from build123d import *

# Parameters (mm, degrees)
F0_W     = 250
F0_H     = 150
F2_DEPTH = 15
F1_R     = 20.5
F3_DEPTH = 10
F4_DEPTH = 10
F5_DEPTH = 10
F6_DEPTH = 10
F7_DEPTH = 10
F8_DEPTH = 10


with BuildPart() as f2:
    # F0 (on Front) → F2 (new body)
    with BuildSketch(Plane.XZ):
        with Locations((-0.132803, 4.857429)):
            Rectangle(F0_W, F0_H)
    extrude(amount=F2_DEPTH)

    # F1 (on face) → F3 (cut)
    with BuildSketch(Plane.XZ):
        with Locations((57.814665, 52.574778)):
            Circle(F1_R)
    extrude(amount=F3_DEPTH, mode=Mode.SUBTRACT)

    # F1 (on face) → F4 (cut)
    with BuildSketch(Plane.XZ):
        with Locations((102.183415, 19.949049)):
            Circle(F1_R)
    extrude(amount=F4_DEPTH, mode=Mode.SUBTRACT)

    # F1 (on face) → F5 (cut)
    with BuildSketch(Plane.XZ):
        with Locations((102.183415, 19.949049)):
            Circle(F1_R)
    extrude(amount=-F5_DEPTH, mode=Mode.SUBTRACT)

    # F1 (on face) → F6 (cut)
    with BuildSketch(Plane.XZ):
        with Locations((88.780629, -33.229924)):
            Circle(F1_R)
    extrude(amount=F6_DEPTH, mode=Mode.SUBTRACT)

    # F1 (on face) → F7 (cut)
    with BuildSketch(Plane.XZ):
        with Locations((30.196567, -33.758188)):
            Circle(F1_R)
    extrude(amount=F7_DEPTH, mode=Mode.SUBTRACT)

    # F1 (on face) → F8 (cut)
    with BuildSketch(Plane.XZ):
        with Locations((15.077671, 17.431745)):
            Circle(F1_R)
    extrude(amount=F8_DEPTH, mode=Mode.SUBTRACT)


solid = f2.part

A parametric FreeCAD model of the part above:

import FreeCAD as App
import Part
import Sketcher

V = App.Vector
Q = App.Units.Quantity


def add_polygon(sketch, points):
    """Adds a closed chain of lines whose ends are joined by coincident constraints."""
    first, n = sketch.GeometryCount, len(points)
    for a, b in zip(points, points[1:] + points[:1]):
        sketch.addGeometry(Part.LineSegment(App.Vector(*a, 0), App.Vector(*b, 0)), False)
    for i in range(n):
        sketch.addConstraint(Sketcher.Constraint("Coincident", first + i, 2, first + (i + 1) % n, 1))

doc = App.newDocument("Part")
body = doc.addObject("PartDesign::Body", "Body")

# Sketch on XZ plane
sketch1 = body.newObject("Sketcher::SketchObject", "Sketch")
sketch1.AttachmentSupport = (doc.getObject("XZ_Plane"), [""])
sketch1.MapMode = "FlatFace"
add_polygon(sketch1, [(-125, 80), (-125, -70), (125, -70), (125, 80)])  # lines 0-3
sketch1.addConstraint(Sketcher.Constraint("Vertical", 0))
sketch1.addConstraint(Sketcher.Constraint("Horizontal", 1))
sketch1.addConstraint(Sketcher.Constraint("Vertical", 2))
sketch1.addConstraint(Sketcher.Constraint("Horizontal", 3))
sketch1.addConstraint(Sketcher.Constraint("DistanceX", 1, 1, 1, 2, Q("250 mm")))
sketch1.addConstraint(Sketcher.Constraint("DistanceY", 0, 2, 0, 1, Q("150 mm")))
sketch1.addConstraint(Sketcher.Constraint("DistanceY", 0, 2, -1, 1, Q("70.142571 mm")))
sketch1.addConstraint(Sketcher.Constraint("DistanceX", 0, 2, -1, 1, Q("125.132803 mm")))
pad1 = body.newObject("PartDesign::Pad", "Pad")
pad1.Profile = sketch1
pad1.Length = 15

# Sketch on XZ plane
sketch2 = body.newObject("Sketcher::SketchObject", "Sketch001")
sketch2.AttachmentSupport = (doc.getObject("XZ_Plane"), [""])
sketch2.MapMode = "FlatFace"
sketch2.addGeometry(Part.Circle(V(58, 53, 0), V(0, 0, 1), 20), False)
sketch2.addConstraint(Sketcher.Constraint("Diameter", 0, Q("41 mm")))
sketch2.addConstraint(Sketcher.Constraint("DistanceY", -1, 1, 0, 3, Q("52.574778 mm")))
sketch2.addConstraint(Sketcher.Constraint("DistanceX", -1, 1, 0, 3, Q("57.814665 mm")))
pocket1 = body.newObject("PartDesign::Pocket", "Pocket")
pocket1.Profile = sketch2
pocket1.Length = 10
pocket1.Reversed = True

# Sketch on XZ plane
sketch3 = body.newObject("Sketcher::SketchObject", "Sketch002")
sketch3.AttachmentSupport = (doc.getObject("XZ_Plane"), [""])
sketch3.MapMode = "FlatFace"
sketch3.addGeometry(Part.Circle(V(102, 20, 0), V(0, 0, 1), 20), False)
sketch3.addConstraint(Sketcher.Constraint("Diameter", 0, Q("41 mm")))
sketch3.addConstraint(Sketcher.Constraint("DistanceY", -1, 1, 0, 3, Q("19.949049 mm")))
sketch3.addConstraint(Sketcher.Constraint("DistanceX", -1, 1, 0, 3, Q("102.183415 mm")))
pocket2 = body.newObject("PartDesign::Pocket", "Pocket001")
pocket2.Profile = sketch3
pocket2.Length = 10
pocket2.Reversed = True

# Sketch on XZ plane
sketch4 = body.newObject("Sketcher::SketchObject", "Sketch003")
sketch4.AttachmentSupport = (doc.getObject("XZ_Plane"), [""])
sketch4.MapMode = "FlatFace"
sketch4.addGeometry(Part.Circle(V(102, 20, 0), V(0, 0, 1), 20), False)
sketch4.addConstraint(Sketcher.Constraint("Diameter", 0, Q("41 mm")))
sketch4.addConstraint(Sketcher.Constraint("DistanceY", -1, 1, 0, 3, Q("19.949049 mm")))
sketch4.addConstraint(Sketcher.Constraint("DistanceX", -1, 1, 0, 3, Q("102.183415 mm")))
pocket3 = body.newObject("PartDesign::Pocket", "Pocket002")
pocket3.Profile = sketch4
pocket3.Length = 10

# Sketch on XZ plane
sketch5 = body.newObject("Sketcher::SketchObject", "Sketch004")
sketch5.AttachmentSupport = (doc.getObject("XZ_Plane"), [""])
sketch5.MapMode = "FlatFace"
sketch5.addGeometry(Part.Circle(V(89, -33, 0), V(0, 0, 1), 20), False)
sketch5.addConstraint(Sketcher.Constraint("Diameter", 0, Q("41 mm")))
sketch5.addConstraint(Sketcher.Constraint("DistanceX", -1, 1, 0, 3, Q("88.780629 mm")))
sketch5.addConstraint(Sketcher.Constraint("DistanceY", 0, 3, -1, 1, Q("33.229924 mm")))
pocket4 = body.newObject("PartDesign::Pocket", "Pocket003")
pocket4.Profile = sketch5
pocket4.Length = 10
pocket4.Reversed = True

# Sketch on XZ plane
sketch6 = body.newObject("Sketcher::SketchObject", "Sketch005")
sketch6.AttachmentSupport = (doc.getObject("XZ_Plane"), [""])
sketch6.MapMode = "FlatFace"
sketch6.addGeometry(Part.Circle(V(30, -34, 0), V(0, 0, 1), 20), False)
sketch6.addConstraint(Sketcher.Constraint("Diameter", 0, Q("41 mm")))
sketch6.addConstraint(Sketcher.Constraint("DistanceX", -1, 1, 0, 3, Q("30.196567 mm")))
sketch6.addConstraint(Sketcher.Constraint("DistanceY", 0, 3, -1, 1, Q("33.758188 mm")))
pocket5 = body.newObject("PartDesign::Pocket", "Pocket004")
pocket5.Profile = sketch6
pocket5.Length = 10
pocket5.Reversed = True

# Sketch on XZ plane
sketch7 = body.newObject("Sketcher::SketchObject", "Sketch006")
sketch7.AttachmentSupport = (doc.getObject("XZ_Plane"), [""])
sketch7.MapMode = "FlatFace"
sketch7.addGeometry(Part.Circle(V(15, 17, 0), V(0, 0, 1), 20), False)
sketch7.addConstraint(Sketcher.Constraint("Diameter", 0, Q("41 mm")))
sketch7.addConstraint(Sketcher.Constraint("DistanceX", -1, 1, 0, 3, Q("15.077671 mm")))
sketch7.addConstraint(Sketcher.Constraint("DistanceY", -1, 1, 0, 3, Q("17.431745 mm")))
pocket6 = body.newObject("PartDesign::Pocket", "Pocket005")
pocket6.Profile = sketch7
pocket6.Length = 10
pocket6.Reversed = True

doc.recompute()
